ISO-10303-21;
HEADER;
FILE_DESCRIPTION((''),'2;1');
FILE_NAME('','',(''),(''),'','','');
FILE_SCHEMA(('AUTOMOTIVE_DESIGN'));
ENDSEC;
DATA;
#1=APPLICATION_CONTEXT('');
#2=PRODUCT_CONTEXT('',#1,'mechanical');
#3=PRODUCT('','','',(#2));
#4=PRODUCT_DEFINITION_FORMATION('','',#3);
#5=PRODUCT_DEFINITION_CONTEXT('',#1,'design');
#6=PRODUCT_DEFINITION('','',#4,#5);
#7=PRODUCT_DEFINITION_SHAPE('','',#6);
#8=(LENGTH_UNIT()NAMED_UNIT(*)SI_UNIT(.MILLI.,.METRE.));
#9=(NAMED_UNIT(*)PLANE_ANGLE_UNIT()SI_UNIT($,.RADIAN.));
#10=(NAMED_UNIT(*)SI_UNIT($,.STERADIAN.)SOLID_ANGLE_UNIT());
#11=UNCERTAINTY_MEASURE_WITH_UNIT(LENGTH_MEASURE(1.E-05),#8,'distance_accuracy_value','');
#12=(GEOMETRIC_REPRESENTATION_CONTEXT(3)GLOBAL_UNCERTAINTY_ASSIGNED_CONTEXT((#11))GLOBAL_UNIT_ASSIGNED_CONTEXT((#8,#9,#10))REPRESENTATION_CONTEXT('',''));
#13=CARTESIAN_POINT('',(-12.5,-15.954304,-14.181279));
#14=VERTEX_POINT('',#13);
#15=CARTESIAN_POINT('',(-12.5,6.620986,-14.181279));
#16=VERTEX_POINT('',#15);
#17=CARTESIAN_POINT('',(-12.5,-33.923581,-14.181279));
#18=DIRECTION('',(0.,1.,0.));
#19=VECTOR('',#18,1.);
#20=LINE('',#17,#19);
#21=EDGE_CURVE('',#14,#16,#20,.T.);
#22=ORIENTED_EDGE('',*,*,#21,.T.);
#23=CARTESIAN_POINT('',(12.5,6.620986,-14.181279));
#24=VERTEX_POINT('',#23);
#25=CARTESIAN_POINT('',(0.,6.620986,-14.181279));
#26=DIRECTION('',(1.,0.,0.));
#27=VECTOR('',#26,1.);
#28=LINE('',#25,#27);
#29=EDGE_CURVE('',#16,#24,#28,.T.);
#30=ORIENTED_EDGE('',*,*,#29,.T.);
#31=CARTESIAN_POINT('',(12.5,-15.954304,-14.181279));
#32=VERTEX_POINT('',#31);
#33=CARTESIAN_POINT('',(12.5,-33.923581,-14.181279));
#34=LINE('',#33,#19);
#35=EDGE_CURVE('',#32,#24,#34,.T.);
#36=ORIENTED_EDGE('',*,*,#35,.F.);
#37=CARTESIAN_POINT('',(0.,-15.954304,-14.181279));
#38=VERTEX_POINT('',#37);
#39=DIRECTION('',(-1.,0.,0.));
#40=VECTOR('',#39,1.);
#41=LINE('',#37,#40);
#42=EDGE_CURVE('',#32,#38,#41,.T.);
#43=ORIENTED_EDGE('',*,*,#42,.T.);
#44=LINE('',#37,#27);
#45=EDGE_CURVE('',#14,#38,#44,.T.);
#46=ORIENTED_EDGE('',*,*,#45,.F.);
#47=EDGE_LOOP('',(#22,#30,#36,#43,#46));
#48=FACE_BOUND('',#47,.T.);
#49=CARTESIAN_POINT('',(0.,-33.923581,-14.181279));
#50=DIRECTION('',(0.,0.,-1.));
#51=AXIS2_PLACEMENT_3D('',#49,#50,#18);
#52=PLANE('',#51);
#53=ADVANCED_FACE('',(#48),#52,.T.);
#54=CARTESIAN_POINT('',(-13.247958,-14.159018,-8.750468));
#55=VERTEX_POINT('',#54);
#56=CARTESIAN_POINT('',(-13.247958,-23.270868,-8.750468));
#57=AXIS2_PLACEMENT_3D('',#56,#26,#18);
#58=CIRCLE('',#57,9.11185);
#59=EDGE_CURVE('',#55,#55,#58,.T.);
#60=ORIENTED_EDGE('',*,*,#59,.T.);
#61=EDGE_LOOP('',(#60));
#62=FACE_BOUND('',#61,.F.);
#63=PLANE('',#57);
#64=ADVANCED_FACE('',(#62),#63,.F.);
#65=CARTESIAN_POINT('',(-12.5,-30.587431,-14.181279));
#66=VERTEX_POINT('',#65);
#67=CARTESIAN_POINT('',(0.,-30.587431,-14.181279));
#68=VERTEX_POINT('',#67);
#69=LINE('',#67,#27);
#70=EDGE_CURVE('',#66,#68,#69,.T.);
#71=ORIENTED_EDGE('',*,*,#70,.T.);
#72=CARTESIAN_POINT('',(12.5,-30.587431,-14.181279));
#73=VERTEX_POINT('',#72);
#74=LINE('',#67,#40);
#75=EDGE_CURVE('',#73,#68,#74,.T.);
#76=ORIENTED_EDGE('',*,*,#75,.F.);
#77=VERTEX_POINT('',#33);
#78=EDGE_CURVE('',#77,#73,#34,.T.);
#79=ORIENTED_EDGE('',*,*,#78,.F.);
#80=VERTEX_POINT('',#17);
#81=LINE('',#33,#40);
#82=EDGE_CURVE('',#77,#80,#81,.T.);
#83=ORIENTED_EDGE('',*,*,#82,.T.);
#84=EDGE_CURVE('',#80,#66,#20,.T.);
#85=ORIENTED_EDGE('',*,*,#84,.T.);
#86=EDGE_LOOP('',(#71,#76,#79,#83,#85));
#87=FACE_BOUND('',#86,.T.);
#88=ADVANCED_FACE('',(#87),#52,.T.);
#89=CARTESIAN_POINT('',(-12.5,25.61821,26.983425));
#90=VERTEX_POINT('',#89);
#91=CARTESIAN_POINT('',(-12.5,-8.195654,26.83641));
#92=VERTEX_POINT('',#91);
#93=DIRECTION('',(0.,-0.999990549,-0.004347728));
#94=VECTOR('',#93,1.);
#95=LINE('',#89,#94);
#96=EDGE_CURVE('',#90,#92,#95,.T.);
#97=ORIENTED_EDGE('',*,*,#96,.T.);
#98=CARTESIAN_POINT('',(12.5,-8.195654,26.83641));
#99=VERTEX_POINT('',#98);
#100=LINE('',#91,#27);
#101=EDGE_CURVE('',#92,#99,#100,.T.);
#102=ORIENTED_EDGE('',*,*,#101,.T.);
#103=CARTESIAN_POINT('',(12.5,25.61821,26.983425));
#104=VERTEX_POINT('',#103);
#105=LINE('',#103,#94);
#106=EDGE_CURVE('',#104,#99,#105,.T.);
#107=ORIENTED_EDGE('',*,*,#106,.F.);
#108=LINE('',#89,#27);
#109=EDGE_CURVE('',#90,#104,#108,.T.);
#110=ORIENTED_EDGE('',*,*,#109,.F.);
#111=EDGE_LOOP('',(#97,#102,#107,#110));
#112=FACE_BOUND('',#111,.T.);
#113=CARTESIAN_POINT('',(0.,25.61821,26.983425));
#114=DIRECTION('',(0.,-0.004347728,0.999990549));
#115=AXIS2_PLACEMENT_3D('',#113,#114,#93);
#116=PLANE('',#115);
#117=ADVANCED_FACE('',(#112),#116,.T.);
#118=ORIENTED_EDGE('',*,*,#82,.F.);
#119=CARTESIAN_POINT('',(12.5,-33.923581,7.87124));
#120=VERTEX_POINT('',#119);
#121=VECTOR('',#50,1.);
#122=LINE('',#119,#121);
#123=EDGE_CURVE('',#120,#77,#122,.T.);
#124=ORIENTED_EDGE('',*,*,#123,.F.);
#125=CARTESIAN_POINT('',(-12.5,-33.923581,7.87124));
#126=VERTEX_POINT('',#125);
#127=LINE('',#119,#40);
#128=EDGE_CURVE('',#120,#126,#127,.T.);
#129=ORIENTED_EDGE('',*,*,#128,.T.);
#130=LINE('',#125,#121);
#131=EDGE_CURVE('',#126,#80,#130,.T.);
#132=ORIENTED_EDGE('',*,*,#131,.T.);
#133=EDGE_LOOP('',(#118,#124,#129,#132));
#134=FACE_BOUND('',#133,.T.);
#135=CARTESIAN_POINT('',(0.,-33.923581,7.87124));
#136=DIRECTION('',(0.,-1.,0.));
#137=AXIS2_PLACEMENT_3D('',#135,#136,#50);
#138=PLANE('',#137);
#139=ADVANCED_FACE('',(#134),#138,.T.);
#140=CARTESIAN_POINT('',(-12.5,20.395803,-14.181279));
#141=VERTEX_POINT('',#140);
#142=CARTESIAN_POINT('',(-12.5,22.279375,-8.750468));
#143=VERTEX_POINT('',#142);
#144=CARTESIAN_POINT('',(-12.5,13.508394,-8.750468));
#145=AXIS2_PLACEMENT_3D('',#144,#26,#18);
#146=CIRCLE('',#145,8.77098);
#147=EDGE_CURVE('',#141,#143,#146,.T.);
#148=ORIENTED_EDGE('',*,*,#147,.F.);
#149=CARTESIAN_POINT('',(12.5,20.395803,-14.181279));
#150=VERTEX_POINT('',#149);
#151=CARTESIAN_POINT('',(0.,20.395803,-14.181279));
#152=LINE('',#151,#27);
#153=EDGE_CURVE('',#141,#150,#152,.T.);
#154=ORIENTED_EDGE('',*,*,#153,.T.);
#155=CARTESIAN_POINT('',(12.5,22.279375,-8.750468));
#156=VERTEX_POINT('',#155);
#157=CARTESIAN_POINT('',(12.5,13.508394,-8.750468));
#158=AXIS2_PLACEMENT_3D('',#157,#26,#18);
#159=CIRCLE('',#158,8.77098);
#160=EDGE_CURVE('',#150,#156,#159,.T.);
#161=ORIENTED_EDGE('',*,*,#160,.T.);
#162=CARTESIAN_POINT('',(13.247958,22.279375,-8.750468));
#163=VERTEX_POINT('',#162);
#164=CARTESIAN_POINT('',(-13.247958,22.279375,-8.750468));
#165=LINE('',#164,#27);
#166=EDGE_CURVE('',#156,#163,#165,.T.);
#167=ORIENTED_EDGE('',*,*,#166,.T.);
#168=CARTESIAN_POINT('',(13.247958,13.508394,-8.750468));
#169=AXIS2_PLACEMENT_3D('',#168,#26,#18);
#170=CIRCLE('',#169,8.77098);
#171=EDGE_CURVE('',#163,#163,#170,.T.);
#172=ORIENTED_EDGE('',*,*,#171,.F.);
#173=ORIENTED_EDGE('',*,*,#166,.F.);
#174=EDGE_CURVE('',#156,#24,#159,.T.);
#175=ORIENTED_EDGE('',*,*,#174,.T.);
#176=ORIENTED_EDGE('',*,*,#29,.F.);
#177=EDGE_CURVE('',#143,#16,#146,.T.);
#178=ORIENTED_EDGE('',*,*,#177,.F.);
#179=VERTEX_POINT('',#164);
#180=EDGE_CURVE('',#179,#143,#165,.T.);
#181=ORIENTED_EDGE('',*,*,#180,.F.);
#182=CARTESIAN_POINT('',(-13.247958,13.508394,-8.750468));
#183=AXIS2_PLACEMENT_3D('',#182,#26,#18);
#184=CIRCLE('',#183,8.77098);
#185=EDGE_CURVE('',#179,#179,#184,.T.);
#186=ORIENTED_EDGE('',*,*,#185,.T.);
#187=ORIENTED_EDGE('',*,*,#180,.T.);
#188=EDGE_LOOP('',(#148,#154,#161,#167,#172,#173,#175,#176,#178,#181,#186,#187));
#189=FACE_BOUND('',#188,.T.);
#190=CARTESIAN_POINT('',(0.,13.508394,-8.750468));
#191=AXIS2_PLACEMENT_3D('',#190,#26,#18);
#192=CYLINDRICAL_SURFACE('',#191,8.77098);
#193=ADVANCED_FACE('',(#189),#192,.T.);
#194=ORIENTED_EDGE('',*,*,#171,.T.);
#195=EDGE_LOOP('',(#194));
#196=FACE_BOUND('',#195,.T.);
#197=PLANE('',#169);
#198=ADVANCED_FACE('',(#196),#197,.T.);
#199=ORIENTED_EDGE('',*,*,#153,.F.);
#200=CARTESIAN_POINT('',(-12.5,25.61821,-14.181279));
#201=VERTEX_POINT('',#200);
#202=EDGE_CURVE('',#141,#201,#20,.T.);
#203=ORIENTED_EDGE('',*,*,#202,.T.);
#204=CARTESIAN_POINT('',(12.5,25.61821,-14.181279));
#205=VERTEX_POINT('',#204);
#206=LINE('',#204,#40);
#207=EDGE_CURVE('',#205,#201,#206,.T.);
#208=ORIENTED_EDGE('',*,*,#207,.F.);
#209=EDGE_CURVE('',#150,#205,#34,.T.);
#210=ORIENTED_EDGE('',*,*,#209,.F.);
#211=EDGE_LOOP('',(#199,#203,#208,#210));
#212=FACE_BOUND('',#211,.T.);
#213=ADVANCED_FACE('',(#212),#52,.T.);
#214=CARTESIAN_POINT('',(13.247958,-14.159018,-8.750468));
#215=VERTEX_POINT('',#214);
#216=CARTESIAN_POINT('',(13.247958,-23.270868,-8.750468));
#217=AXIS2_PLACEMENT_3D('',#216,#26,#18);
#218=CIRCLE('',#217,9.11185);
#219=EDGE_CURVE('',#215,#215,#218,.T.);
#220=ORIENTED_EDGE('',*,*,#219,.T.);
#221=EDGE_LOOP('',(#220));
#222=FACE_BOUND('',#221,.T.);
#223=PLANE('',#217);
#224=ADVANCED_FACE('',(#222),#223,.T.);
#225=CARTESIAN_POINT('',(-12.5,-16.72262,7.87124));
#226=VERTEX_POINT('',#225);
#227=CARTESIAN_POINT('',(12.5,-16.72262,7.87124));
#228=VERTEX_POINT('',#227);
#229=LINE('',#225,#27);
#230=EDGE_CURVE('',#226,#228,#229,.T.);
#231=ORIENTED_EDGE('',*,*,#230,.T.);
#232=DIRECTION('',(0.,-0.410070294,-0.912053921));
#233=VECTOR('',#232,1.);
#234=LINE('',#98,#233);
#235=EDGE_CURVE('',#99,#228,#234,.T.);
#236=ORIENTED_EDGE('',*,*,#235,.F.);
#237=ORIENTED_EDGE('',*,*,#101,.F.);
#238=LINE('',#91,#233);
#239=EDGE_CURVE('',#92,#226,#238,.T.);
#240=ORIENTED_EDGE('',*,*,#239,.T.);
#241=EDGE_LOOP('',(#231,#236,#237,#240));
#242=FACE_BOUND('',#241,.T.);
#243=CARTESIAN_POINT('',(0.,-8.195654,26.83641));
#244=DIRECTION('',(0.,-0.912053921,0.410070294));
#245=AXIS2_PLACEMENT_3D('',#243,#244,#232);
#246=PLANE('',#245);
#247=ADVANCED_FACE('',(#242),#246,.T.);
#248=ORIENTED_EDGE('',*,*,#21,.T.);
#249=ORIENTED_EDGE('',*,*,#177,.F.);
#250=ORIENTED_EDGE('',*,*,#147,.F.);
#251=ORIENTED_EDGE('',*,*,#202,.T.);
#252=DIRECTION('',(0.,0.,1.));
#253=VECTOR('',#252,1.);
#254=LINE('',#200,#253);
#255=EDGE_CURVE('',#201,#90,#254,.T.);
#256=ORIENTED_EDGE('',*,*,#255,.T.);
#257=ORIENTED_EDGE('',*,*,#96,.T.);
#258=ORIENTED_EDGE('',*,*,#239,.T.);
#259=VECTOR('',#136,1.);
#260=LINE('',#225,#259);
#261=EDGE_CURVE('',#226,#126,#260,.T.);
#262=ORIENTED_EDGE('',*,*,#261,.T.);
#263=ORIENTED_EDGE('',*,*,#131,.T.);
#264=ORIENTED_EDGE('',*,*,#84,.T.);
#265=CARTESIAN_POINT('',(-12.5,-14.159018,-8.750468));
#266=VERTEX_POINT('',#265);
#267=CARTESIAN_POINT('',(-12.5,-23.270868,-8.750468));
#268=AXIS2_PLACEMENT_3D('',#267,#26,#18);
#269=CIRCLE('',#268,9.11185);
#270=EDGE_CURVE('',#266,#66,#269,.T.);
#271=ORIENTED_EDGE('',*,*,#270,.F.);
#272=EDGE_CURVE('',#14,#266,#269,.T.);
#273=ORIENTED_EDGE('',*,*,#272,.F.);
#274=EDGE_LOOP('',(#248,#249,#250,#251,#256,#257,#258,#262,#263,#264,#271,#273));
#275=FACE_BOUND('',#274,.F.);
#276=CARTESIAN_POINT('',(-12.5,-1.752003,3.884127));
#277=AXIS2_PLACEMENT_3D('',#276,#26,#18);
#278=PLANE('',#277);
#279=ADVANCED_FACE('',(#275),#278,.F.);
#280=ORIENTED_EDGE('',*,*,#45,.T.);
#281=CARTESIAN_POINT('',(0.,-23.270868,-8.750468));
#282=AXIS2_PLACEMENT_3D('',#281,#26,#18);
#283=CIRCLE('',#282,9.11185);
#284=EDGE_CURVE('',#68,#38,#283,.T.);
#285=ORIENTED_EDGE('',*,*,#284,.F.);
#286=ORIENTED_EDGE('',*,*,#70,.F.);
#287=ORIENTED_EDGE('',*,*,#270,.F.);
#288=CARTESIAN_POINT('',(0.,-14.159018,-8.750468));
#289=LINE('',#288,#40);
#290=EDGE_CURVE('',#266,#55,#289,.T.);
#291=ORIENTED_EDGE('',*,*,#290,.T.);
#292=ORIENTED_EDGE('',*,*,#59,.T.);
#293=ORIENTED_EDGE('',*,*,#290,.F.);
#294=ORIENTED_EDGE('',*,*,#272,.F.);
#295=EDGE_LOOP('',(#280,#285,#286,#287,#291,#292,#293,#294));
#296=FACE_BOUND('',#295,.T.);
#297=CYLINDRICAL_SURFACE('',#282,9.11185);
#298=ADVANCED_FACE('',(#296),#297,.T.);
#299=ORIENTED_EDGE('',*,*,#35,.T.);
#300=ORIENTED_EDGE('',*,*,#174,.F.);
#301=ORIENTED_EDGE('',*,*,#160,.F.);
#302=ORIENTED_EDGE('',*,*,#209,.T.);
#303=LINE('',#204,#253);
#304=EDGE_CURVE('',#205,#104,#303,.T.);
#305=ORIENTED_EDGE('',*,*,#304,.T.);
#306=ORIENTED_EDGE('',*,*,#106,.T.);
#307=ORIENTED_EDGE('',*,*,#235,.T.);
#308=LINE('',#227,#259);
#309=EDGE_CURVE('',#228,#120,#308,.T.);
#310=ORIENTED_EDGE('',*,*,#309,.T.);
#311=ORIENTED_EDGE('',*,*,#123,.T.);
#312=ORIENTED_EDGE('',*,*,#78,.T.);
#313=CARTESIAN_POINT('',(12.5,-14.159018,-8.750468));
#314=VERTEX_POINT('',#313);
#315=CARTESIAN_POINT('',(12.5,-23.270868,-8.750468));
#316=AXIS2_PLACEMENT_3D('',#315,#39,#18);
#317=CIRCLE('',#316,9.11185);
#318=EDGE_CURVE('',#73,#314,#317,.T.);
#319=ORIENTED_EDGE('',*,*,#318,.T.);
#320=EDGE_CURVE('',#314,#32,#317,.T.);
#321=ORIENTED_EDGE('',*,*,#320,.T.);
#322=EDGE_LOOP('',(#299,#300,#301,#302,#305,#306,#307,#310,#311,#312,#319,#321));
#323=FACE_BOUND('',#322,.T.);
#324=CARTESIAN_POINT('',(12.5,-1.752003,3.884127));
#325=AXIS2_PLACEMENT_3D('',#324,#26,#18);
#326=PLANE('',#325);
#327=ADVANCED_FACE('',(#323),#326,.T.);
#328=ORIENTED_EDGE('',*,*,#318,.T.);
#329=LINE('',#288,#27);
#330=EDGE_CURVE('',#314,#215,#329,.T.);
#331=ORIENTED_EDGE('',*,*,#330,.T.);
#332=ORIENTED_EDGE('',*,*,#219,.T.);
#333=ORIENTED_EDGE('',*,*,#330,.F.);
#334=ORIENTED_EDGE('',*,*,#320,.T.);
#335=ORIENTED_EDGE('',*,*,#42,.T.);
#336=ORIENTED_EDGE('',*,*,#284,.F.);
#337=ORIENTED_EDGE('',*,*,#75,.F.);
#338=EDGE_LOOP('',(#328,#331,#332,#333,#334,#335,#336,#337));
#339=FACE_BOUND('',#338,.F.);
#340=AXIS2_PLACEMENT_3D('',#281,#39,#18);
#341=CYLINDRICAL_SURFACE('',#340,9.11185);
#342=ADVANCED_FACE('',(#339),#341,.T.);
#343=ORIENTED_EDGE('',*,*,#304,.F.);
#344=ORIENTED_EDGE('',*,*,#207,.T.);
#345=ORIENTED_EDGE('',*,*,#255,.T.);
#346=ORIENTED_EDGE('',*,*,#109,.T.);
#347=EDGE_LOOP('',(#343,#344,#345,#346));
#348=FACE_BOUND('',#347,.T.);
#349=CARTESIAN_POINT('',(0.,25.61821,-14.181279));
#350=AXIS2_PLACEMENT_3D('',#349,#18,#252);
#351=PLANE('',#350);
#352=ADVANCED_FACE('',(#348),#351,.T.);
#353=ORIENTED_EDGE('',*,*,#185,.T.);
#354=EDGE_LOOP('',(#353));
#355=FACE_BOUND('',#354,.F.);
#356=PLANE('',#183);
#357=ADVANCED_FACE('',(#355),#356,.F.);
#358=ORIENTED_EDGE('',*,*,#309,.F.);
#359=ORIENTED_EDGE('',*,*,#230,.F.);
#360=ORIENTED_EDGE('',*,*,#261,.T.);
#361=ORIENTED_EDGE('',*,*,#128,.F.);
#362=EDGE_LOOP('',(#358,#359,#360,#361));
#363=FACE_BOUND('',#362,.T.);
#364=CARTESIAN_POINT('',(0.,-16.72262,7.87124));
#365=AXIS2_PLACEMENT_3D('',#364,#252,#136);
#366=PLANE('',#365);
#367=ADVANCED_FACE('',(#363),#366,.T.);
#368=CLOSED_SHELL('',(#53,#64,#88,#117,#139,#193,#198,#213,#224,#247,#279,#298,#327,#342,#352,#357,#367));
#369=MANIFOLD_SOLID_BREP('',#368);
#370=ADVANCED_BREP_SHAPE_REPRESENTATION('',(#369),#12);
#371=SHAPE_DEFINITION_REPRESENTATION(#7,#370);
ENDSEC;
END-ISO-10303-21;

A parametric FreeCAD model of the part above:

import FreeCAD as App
import Part
import Sketcher

V = App.Vector
Q = App.Units.Quantity

doc = App.newDocument("Part")
params = doc.addObject("Spreadsheet::Sheet", "Params")
for row, (alias, value) in enumerate([
    ("pad1_length", "25 mm"),
    ("pad2_length", "26.495917 mm"),
], start=1):
    params.set(f"A{row}", alias)
    params.set(f"B{row}", "=" + value)
    params.setAlias(f"B{row}", alias)

body = doc.addObject("PartDesign::Body", "Body")

# Sketch on YZ plane
sketch1 = body.newObject("Sketcher::SketchObject", "Sketch")
sketch1.AttachmentSupport = (doc.getObject("YZ_Plane"), [""])
sketch1.MapMode = "FlatFace"
sketch1.addGeometry(Part.LineSegment(V(25.61821, -14.181279, 0), V(25.61821, 26.983425, 0)), False)
sketch1.addGeometry(Part.LineSegment(V(25.61821, 26.983425, 0), V(-8.195654, 26.83641, 0)), False)
sketch1.addGeometry(Part.LineSegment(V(-8.195654, 26.83641, 0), V(-16.72262, 7.87124, 0)), False)
sketch1.addGeometry(Part.LineSegment(V(-16.72262, 7.87124, 0), V(-33.923581, 7.87124, 0)), False)
sketch1.addGeometry(Part.LineSegment(V(-33.923581, 7.87124, 0), V(-33.923581, -14.181279, 0)), False)
sketch1.addGeometry(Part.LineSegment(V(-33.923581, -14.181279, 0), V(25.61821, -14.181279, 0)), False)
sketch1.addConstraint(Sketcher.Constraint("Coincident", 0, 2, 1, 1))
sketch1.addConstraint(Sketcher.Constraint("Coincident", 1, 2, 2, 1))
sketch1.addConstraint(Sketcher.Constraint("Coincident", 2, 2, 3, 1))
sketch1.addConstraint(Sketcher.Constraint("Coincident", 3, 2, 4, 1))
sketch1.addConstraint(Sketcher.Constraint("Coincident", 4, 2, 5, 1))
sketch1.addConstraint(Sketcher.Constraint("Coincident", 5, 2, 0, 1))
sketch1.addConstraint(Sketcher.Constraint("Vertical", 0))
sketch1.addConstraint(Sketcher.Constraint("Horizontal", 3))
sketch1.addConstraint(Sketcher.Constraint("Vertical", 4))
sketch1.addConstraint(Sketcher.Constraint("Horizontal", 5))
sketch1.addConstraint(Sketcher.Constraint("DistanceX", 3, 2, 3, 1, Q("17.200962 mm")))
sketch1.addConstraint(Sketcher.Constraint("DistanceX", 5, 1, 5, 2, Q("59.541792 mm")))
sketch1.addConstraint(Sketcher.Constraint("DistanceY", 4, 2, 4, 1, Q("22.052519 mm")))
sketch1.addConstraint(Sketcher.Constraint("DistanceY", 0, 1, 0, 2, Q("41.164704 mm")))
sketch1.addConstraint(Sketcher.Constraint("DistanceX", -1, 1, 0, 2, Q("25.61821 mm")))
sketch1.addConstraint(Sketcher.Constraint("DistanceY", -1, 1, 1, 2, Q("26.83641 mm")))
sketch1.addConstraint(Sketcher.Constraint("DistanceY", -1, 1, 2, 2, Q("7.87124 mm")))
sketch1.addConstraint(Sketcher.Constraint("Distance", 1, Q("33.814184 mm")))
pad1 = body.newObject("PartDesign::Pad", "Pad")
pad1.Profile = sketch1
pad1.setExpression("Length", "Params.pad1_length")
pad1.Midplane = True

# Sketch on YZ plane
sketch2 = body.newObject("Sketcher::SketchObject", "Sketch001")
sketch2.AttachmentSupport = (doc.getObject("YZ_Plane"), [""])
sketch2.MapMode = "FlatFace"
sketch2.addGeometry(Part.Circle(V(-23.270868, -8.750468, 0), V(0, 0, 1), 9.11185), False)
sketch2.addGeometry(Part.Circle(V(13.508394, -8.750468, 0), V(0, 0, 1), 8.77098), False)
sketch2.addConstraint(Sketcher.Constraint("Horizontal", 0, 3, 1, 3))
sketch2.addConstraint(Sketcher.Constraint("Diameter", 0, Q("18.223699 mm")))
sketch2.addConstraint(Sketcher.Constraint("Diameter", 1, Q("17.54196 mm")))
sketch2.addConstraint(Sketcher.Constraint("DistanceY", 0, 3, -1, 1, Q("8.750468 mm")))
sketch2.addConstraint(Sketcher.Constraint("DistanceX", 0, 3, -1, 1, Q("23.270868 mm")))
sketch2.addConstraint(Sketcher.Constraint("DistanceX", -1, 1, 1, 3, Q("13.508394 mm")))
pad2 = body.newObject("PartDesign::Pad", "Pad001")
pad2.Profile = sketch2
pad2.setExpression("Length", "Params.pad2_length")
pad2.Midplane = True

doc.recompute()
